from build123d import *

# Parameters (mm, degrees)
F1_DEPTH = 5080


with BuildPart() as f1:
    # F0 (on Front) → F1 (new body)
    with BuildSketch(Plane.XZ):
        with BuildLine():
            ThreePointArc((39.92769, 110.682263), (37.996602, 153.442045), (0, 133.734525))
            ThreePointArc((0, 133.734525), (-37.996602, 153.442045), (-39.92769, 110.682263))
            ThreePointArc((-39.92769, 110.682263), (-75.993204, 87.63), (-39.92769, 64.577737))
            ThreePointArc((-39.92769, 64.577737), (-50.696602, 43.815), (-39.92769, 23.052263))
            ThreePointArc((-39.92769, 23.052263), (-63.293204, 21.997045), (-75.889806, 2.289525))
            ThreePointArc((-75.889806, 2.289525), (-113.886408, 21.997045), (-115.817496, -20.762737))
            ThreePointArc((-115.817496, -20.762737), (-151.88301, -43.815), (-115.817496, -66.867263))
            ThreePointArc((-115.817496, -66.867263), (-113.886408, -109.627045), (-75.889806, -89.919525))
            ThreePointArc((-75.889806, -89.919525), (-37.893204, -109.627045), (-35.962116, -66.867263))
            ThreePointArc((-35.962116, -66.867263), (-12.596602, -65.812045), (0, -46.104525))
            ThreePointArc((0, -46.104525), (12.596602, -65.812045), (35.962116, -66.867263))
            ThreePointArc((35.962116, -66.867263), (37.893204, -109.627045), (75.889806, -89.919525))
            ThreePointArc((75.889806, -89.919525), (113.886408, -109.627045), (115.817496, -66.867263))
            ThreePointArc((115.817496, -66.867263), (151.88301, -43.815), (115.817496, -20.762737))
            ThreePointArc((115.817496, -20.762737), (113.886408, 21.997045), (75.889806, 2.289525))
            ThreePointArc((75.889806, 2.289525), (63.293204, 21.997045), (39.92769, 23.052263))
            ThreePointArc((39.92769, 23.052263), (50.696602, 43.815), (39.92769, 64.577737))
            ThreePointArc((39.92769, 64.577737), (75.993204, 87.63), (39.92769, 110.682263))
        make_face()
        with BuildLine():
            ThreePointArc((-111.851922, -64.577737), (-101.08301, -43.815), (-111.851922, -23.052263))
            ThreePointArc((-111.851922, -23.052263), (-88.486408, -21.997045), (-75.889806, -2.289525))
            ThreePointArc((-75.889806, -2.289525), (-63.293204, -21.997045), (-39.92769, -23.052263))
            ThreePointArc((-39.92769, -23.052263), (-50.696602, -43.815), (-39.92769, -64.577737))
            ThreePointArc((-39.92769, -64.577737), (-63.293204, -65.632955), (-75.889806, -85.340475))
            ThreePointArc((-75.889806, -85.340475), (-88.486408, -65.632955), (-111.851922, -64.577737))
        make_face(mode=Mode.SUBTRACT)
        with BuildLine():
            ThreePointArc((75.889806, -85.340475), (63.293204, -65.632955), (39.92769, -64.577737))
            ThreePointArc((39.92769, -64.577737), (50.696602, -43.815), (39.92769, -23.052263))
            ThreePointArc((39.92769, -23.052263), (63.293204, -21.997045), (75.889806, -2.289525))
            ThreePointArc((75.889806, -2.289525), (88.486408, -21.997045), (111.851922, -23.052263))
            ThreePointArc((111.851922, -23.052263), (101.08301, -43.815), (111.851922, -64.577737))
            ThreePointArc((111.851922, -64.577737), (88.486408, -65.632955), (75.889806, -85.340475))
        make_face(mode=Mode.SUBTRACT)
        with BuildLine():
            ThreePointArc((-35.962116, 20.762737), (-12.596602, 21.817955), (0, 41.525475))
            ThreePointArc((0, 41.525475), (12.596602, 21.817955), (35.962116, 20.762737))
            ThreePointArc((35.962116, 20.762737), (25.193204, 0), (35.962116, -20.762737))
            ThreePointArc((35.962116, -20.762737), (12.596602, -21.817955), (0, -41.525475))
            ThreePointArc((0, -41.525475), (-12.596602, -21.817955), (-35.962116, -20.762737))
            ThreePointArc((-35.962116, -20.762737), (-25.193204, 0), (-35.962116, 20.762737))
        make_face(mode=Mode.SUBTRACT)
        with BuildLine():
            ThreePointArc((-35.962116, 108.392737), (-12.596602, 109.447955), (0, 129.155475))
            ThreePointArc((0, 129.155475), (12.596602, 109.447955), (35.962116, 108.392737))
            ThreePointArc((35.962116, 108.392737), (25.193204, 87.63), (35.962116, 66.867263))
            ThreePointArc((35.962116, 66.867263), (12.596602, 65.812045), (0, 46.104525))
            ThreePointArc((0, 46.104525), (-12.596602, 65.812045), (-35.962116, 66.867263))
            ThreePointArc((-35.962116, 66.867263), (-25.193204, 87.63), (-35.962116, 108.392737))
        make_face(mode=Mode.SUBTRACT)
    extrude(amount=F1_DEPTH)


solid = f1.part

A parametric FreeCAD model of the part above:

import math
import FreeCAD as App
import Part
import Sketcher
Q = App.Units.Quantity

doc = App.newDocument("Part")
body = doc.addObject("PartDesign::Body", "Body")

sketch1 = body.newObject("Sketcher::SketchObject", "Sketch")
sketch1.AttachmentSupport = (doc.getObject("XZ_Plane"), [""])
sketch1.MapMode = "FlatFace"
sketch1.addGeometry([
    Part.ArcOfCircle(Part.Circle(App.Vector(25, 131, 0), App.Vector(0, 0, 1), 25), math.radians(-55), math.radians(175)),
    Part.ArcOfCircle(Part.Circle(App.Vector(-25, 131, 0), App.Vector(0, 0, 1), 25), math.radians(5), math.radians(235)),
    Part.ArcOfCircle(Part.Circle(App.Vector(-51, 88, 0), App.Vector(0, 0, 1), 25), math.radians(65), math.radians(295)),
    Part.ArcOfCircle(Part.Circle(App.Vector(-25, 44, 0), App.Vector(0, 0, 1), 25), math.radians(125), math.radians(235)),
    Part.ArcOfCircle(Part.Circle(App.Vector(-51, 0, 0), App.Vector(0, 0, 1), 25), math.radians(65), math.radians(175)),
    Part.ArcOfCircle(Part.Circle(App.Vector(-101, 0, 0), App.Vector(0, 0, 1), 25), math.radians(5), math.radians(235)),
    Part.ArcOfCircle(Part.Circle(App.Vector(-126, -44, 0), App.Vector(0, 0, 1), 25), math.radians(65), math.radians(295)),
    Part.ArcOfCircle(Part.Circle(App.Vector(-101, -88, 0), App.Vector(0, 0, 1), 25), math.radians(125), math.radians(355)),
    Part.ArcOfCircle(Part.Circle(App.Vector(-51, -88, 0), App.Vector(0, 0, 1), 25), math.radians(-175), math.radians(55)),
    Part.ArcOfCircle(Part.Circle(App.Vector(-25, -44, 0), App.Vector(0, 0, 1), 25), math.radians(-115), math.radians(-5)),
    Part.ArcOfCircle(Part.Circle(App.Vector(25, -44, 0), App.Vector(0, 0, 1), 25), math.radians(-175), math.radians(-65)),
    Part.ArcOfCircle(Part.Circle(App.Vector(51, -88, 0), App.Vector(0, 0, 1), 25), math.radians(125), math.radians(355)),
    Part.ArcOfCircle(Part.Circle(App.Vector(101, -88, 0), App.Vector(0, 0, 1), 25), math.radians(-175), math.radians(55)),
    Part.ArcOfCircle(Part.Circle(App.Vector(126, -44, 0), App.Vector(0, 0, 1), 25), math.radians(-115), math.radians(115)),
    Part.ArcOfCircle(Part.Circle(App.Vector(101, 0, 0), App.Vector(0, 0, 1), 25), math.radians(-55), math.radians(175)),
    Part.ArcOfCircle(Part.Circle(App.Vector(51, 0, 0), App.Vector(0, 0, 1), 25), math.radians(5), math.radians(115)),
    Part.ArcOfCircle(Part.Circle(App.Vector(25, 44, 0), App.Vector(0, 0, 1), 25), math.radians(-55), math.radians(55)),
    Part.ArcOfCircle(Part.Circle(App.Vector(51, 88, 0), App.Vector(0, 0, 1), 25), math.radians(-115), math.radians(115)),
    Part.ArcOfCircle(Part.Circle(App.Vector(-101, -88, 0), App.Vector(0, 0, 1), 25), math.radians(5), math.radians(115)),
    Part.ArcOfCircle(Part.Circle(App.Vector(-126, -44, 0), App.Vector(0, 0, 1), 25), math.radians(-55), math.radians(55)),
    Part.ArcOfCircle(Part.Circle(App.Vector(-101, 0, 0), App.Vector(0, 0, 1), 25), math.radians(-115), math.radians(-5)),
    Part.ArcOfCircle(Part.Circle(App.Vector(-51, 0, 0), App.Vector(0, 0, 1), 25), math.radians(-175), math.radians(-65)),
    Part.ArcOfCircle(Part.Circle(App.Vector(-25, -44, 0), App.Vector(0, 0, 1), 25), math.radians(125), math.radians(235)),
    Part.ArcOfCircle(Part.Circle(App.Vector(-51, -88, 0), App.Vector(0, 0, 1), 25), math.radians(65), math.radians(175)),
    Part.ArcOfCircle(Part.Circle(App.Vector(101, -88, 0), App.Vector(0, 0, 1), 25), math.radians(65), math.radians(175)),
    Part.ArcOfCircle(Part.Circle(App.Vector(51, -88, 0), App.Vector(0, 0, 1), 25), math.radians(5), math.radians(115)),
    Part.ArcOfCircle(Part.Circle(App.Vector(25, -44, 0), App.Vector(0, 0, 1), 25), math.radians(-55), math.radians(55)),
    Part.ArcOfCircle(Part.Circle(App.Vector(51, 0, 0), App.Vector(0, 0, 1), 25), math.radians(-115), math.radians(-5)),
    Part.ArcOfCircle(Part.Circle(App.Vector(101, 0, 0), App.Vector(0, 0, 1), 25), math.radians(-175), math.radians(-65)),
    Part.ArcOfCircle(Part.Circle(App.Vector(126, -44, 0), App.Vector(0, 0, 1), 25), math.radians(125), math.radians(235)),
    Part.ArcOfCircle(Part.Circle(App.Vector(-51, 0, 0), App.Vector(0, 0, 1), 25), math.radians(-55), math.radians(55)),
    Part.ArcOfCircle(Part.Circle(App.Vector(-25, 44, 0), App.Vector(0, 0, 1), 25), math.radians(-115), math.radians(-5)),
    Part.ArcOfCircle(Part.Circle(App.Vector(25, 44, 0), App.Vector(0, 0, 1), 25), math.radians(-175), math.radians(-65)),
    Part.ArcOfCircle(Part.Circle(App.Vector(51, 0, 0), App.Vector(0, 0, 1), 25), math.radians(125), math.radians(235)),
    Part.ArcOfCircle(Part.Circle(App.Vector(25, -44, 0), App.Vector(0, 0, 1), 25), math.radians(65), math.radians(175)),
    Part.ArcOfCircle(Part.Circle(App.Vector(-25, -44, 0), App.Vector(0, 0, 1), 25), math.radians(5), math.radians(115)),
    Part.ArcOfCircle(Part.Circle(App.Vector(-51, 88, 0), App.Vector(0, 0, 1), 25), math.radians(-55), math.radians(55)),
    Part.ArcOfCircle(Part.Circle(App.Vector(-25, 131, 0), App.Vector(0, 0, 1), 25), math.radians(-115), math.radians(-5)),
    Part.ArcOfCircle(Part.Circle(App.Vector(25, 131, 0), App.Vector(0, 0, 1), 25), math.radians(-175), math.radians(-65)),
    Part.ArcOfCircle(Part.Circle(App.Vector(51, 88, 0), App.Vector(0, 0, 1), 25), math.radians(125), math.radians(235)),
    Part.ArcOfCircle(Part.Circle(App.Vector(25, 44, 0), App.Vector(0, 0, 1), 25), math.radians(65), math.radians(175)),
    Part.ArcOfCircle(Part.Circle(App.Vector(-25, 44, 0), App.Vector(0, 0, 1), 25), math.radians(5), math.radians(115)),
], False)
sketch1.addConstraint([
    Sketcher.Constraint("Coincident", 0, 2, 1, 1),
    Sketcher.Constraint("Coincident", 1, 2, 2, 1),
    Sketcher.Constraint("Coincident", 2, 2, 3, 1),
    Sketcher.Constraint("Coincident", 3, 2, 4, 1),
    Sketcher.Constraint("Coincident", 4, 2, 5, 1),
    Sketcher.Constraint("Coincident", 5, 2, 6, 1),
    Sketcher.Constraint("Coincident", 6, 2, 7, 1),
    Sketcher.Constraint("Coincident", 7, 2, 8, 1),
    Sketcher.Constraint("Coincident", 8, 2, 9, 1),
    Sketcher.Constraint("Coincident", 9, 2, 10, 1),
    Sketcher.Constraint("Coincident", 10, 2, 11, 1),
    Sketcher.Constraint("Coincident", 11, 2, 12, 1),
    Sketcher.Constraint("Coincident", 12, 2, 13, 1),
    Sketcher.Constraint("Coincident", 13, 2, 14, 1),
    Sketcher.Constraint("Coincident", 14, 2, 15, 1),
    Sketcher.Constraint("Coincident", 15, 2, 16, 1),
    Sketcher.Constraint("Coincident", 16, 2, 17, 1),
    Sketcher.Constraint("Coincident", 17, 2, 0, 1),
    Sketcher.Constraint("Coincident", 18, 2, 19, 1),
    Sketcher.Constraint("Coincident", 19, 2, 20, 1),
    Sketcher.Constraint("Coincident", 20, 2, 21, 1),
    Sketcher.Constraint("Coincident", 21, 2, 22, 1),
    Sketcher.Constraint("Coincident", 22, 2, 23, 1),
    Sketcher.Constraint("Coincident", 23, 2, 18, 1),
    Sketcher.Constraint("Coincident", 24, 2, 25, 1),
    Sketcher.Constraint("Coincident", 25, 2, 26, 1),
    Sketcher.Constraint("Coincident", 26, 2, 27, 1),
    Sketcher.Constraint("Coincident", 27, 2, 28, 1),
    Sketcher.Constraint("Coincident", 28, 2, 29, 1),
    Sketcher.Constraint("Coincident", 29, 2, 24, 1),
    Sketcher.Constraint("Coincident", 30, 2, 31, 1),
    Sketcher.Constraint("Coincident", 31, 2, 32, 1),
    Sketcher.Constraint("Coincident", 32, 2, 33, 1),
    Sketcher.Constraint("Coincident", 33, 2, 34, 1),
    Sketcher.Constraint("Coincident", 34, 2, 35, 1),
    Sketcher.Constraint("Coincident", 35, 2, 30, 1),
    Sketcher.Constraint("Coincident", 36, 2, 37, 1),
    Sketcher.Constraint("Coincident", 37, 2, 38, 1),
    Sketcher.Constraint("Coincident", 38, 2, 39, 1),
    Sketcher.Constraint("Coincident", 39, 2, 40, 1),
    Sketcher.Constraint("Coincident", 40, 2, 41, 1),
    Sketcher.Constraint("Coincident", 41, 2, 36, 1),
    Sketcher.Constraint("Coincident", 18, 3, 7, 3),
    Sketcher.Constraint("Coincident", 19, 3, 6, 3),
    Sketcher.Constraint("Coincident", 20, 3, 5, 3),
    Sketcher.Constraint("Coincident", 21, 3, 4, 3),
    Sketcher.Constraint("Coincident", 22, 3, 9, 3),
    Sketcher.Constraint("Coincident", 23, 3, 8, 3),
    Sketcher.Constraint("Coincident", 24, 3, 12, 3),
    Sketcher.Constraint("Coincident", 25, 3, 11, 3),
    Sketcher.Constraint("Coincident", 26, 3, 10, 3),
    Sketcher.Constraint("Coincident", 27, 3, 15, 3),
    Sketcher.Constraint("Coincident", 28, 3, 14, 3),
    Sketcher.Constraint("Coincident", 29, 3, 13, 3),
    Sketcher.Constraint("Coincident", 30, 3, 4, 3),
    Sketcher.Constraint("Coincident", 31, 3, 3, 3),
    Sketcher.Constraint("Coincident", 32, 3, 16, 3),
    Sketcher.Constraint("Coincident", 33, 3, 15, 3),
    Sketcher.Constraint("Coincident", 34, 3, 10, 3),
    Sketcher.Constraint("Coincident", 35, 3, 9, 3),
    Sketcher.Constraint("Coincident", 36, 3, 2, 3),
    Sketcher.Constraint("Coincident", 37, 3, 1, 3),
    Sketcher.Constraint("Coincident", 38, 3, 0, 3),
    Sketcher.Constraint("Coincident", 39, 3, 17, 3),
    Sketcher.Constraint("Coincident", 40, 3, 16, 3),
    Sketcher.Constraint("Coincident", 41, 3, 3, 3),
    Sketcher.Constraint("Equal", 0, 1),
    Sketcher.Constraint("Equal", 1, 2),
    Sketcher.Constraint("Equal", 2, 3),
    Sketcher.Constraint("Equal", 3, 4),
    Sketcher.Constraint("Equal", 4, 5),
    Sketcher.Constraint("Equal", 5, 6),
    Sketcher.Constraint("Equal", 6, 7),
    Sketcher.Constraint("Equal", 7, 8),
    Sketcher.Constraint("Equal", 8, 9),
    Sketcher.Constraint("Equal", 9, 10),
    Sketcher.Constraint("Equal", 10, 11),
    Sketcher.Constraint("Equal", 11, 12),
    Sketcher.Constraint("Equal", 12, 13),
    Sketcher.Constraint("Equal", 13, 14),
    Sketcher.Constraint("Equal", 14, 15),
    Sketcher.Constraint("Equal", 15, 16),
    Sketcher.Constraint("Equal", 16, 17),
    Sketcher.Constraint("Equal", 17, 18),
    Sketcher.Constraint("Equal", 18, 19),
    Sketcher.Constraint("Equal", 19, 20),
    Sketcher.Constraint("Equal", 20, 21),
    Sketcher.Constraint("Equal", 21, 22),
    Sketcher.Constraint("Equal", 22, 23),
    Sketcher.Constraint("Equal", 23, 24),
    Sketcher.Constraint("Equal", 24, 25),
    Sketcher.Constraint("Equal", 25, 26),
    Sketcher.Constraint("Equal", 26, 27),
    Sketcher.Constraint("Equal", 27, 28),
    Sketcher.Constraint("Equal", 28, 29),
    Sketcher.Constraint("Equal", 29, 30),
    Sketcher.Constraint("Equal", 30, 31),
    Sketcher.Constraint("Equal", 31, 32),
    Sketcher.Constraint("Equal", 32, 33),
    Sketcher.Constraint("Equal", 33, 34),
    Sketcher.Constraint("Equal", 34, 35),
    Sketcher.Constraint("Equal", 35, 36),
    Sketcher.Constraint("Equal", 36, 37),
    Sketcher.Constraint("Equal", 37, 38),
    Sketcher.Constraint("Equal", 38, 39),
    Sketcher.Constraint("Equal", 39, 40),
    Sketcher.Constraint("Equal", 40, 41),
    Sketcher.Constraint("Symmetric", 3, 3, 10, 3, -1, 1),
    Sketcher.Constraint("Symmetric", 2, 3, 11, 3, -1, 1),
    Sketcher.Constraint("Symmetric", 5, 3, 14, 3, -1, 1),
    Sketcher.Constraint("Symmetric", 4, 3, 15, 3, -1, 1),
    Sketcher.Constraint("Symmetric", 9, 3, 16, 3, -1, 1),
    Sketcher.Constraint("Symmetric", 8, 3, 17, 3, -1, 1),
    Sketcher.Constraint("Symmetric", 0, 3, 1, 3, -2),
    Sketcher.Constraint("Symmetric", 9, 3, 10, 3, -2),
    Sketcher.Constraint("Symmetric", 8, 3, 11, 3, -2),
    Sketcher.Constraint("Symmetric", 7, 3, 12, 3, -2),
    Sketcher.Constraint("Symmetric", 6, 3, 13, 3, -2),
    Sketcher.Constraint("Symmetric", 4, 2, 14, 2, -2),
    Sketcher.Constraint("Horizontal", 7, 3, 8, 3),
    Sketcher.Constraint("Horizontal", 6, 3, 9, 3),
    Sketcher.Constraint("Horizontal", 6, 2, 8, 2),
    Sketcher.Constraint("Horizontal", 19, 2, 21, 2),
    Sketcher.Constraint("Vertical", 1, 3, 3, 3),
    Sketcher.Constraint("Vertical", 2, 3, 4, 3),
    Sketcher.Constraint("Vertical", 1, 2, 2, 2),
    Sketcher.Constraint("Vertical", 2, 2, 3, 2),
    Sketcher.Constraint("Radius", 0, Q("1 in")),
    Sketcher.Constraint("DistanceY", -1, 1, 2, 3, Q("3.45 in")),
    Sketcher.Constraint("DistanceX", -1, 1, 0, 3, Q("25.296602 mm")),
    Sketcher.Constraint("DistanceX", 6, 3, -1, 1, Q("126.48301 mm")),
    Sketcher.Constraint("DistanceX", 18, 3, -1, 1, Q("101.186409 mm")),
])
pad1 = body.newObject("PartDesign::Pad", "Pad")
pad1.Profile = sketch1
pad1.Length = Q("200 in")

doc.recompute()
